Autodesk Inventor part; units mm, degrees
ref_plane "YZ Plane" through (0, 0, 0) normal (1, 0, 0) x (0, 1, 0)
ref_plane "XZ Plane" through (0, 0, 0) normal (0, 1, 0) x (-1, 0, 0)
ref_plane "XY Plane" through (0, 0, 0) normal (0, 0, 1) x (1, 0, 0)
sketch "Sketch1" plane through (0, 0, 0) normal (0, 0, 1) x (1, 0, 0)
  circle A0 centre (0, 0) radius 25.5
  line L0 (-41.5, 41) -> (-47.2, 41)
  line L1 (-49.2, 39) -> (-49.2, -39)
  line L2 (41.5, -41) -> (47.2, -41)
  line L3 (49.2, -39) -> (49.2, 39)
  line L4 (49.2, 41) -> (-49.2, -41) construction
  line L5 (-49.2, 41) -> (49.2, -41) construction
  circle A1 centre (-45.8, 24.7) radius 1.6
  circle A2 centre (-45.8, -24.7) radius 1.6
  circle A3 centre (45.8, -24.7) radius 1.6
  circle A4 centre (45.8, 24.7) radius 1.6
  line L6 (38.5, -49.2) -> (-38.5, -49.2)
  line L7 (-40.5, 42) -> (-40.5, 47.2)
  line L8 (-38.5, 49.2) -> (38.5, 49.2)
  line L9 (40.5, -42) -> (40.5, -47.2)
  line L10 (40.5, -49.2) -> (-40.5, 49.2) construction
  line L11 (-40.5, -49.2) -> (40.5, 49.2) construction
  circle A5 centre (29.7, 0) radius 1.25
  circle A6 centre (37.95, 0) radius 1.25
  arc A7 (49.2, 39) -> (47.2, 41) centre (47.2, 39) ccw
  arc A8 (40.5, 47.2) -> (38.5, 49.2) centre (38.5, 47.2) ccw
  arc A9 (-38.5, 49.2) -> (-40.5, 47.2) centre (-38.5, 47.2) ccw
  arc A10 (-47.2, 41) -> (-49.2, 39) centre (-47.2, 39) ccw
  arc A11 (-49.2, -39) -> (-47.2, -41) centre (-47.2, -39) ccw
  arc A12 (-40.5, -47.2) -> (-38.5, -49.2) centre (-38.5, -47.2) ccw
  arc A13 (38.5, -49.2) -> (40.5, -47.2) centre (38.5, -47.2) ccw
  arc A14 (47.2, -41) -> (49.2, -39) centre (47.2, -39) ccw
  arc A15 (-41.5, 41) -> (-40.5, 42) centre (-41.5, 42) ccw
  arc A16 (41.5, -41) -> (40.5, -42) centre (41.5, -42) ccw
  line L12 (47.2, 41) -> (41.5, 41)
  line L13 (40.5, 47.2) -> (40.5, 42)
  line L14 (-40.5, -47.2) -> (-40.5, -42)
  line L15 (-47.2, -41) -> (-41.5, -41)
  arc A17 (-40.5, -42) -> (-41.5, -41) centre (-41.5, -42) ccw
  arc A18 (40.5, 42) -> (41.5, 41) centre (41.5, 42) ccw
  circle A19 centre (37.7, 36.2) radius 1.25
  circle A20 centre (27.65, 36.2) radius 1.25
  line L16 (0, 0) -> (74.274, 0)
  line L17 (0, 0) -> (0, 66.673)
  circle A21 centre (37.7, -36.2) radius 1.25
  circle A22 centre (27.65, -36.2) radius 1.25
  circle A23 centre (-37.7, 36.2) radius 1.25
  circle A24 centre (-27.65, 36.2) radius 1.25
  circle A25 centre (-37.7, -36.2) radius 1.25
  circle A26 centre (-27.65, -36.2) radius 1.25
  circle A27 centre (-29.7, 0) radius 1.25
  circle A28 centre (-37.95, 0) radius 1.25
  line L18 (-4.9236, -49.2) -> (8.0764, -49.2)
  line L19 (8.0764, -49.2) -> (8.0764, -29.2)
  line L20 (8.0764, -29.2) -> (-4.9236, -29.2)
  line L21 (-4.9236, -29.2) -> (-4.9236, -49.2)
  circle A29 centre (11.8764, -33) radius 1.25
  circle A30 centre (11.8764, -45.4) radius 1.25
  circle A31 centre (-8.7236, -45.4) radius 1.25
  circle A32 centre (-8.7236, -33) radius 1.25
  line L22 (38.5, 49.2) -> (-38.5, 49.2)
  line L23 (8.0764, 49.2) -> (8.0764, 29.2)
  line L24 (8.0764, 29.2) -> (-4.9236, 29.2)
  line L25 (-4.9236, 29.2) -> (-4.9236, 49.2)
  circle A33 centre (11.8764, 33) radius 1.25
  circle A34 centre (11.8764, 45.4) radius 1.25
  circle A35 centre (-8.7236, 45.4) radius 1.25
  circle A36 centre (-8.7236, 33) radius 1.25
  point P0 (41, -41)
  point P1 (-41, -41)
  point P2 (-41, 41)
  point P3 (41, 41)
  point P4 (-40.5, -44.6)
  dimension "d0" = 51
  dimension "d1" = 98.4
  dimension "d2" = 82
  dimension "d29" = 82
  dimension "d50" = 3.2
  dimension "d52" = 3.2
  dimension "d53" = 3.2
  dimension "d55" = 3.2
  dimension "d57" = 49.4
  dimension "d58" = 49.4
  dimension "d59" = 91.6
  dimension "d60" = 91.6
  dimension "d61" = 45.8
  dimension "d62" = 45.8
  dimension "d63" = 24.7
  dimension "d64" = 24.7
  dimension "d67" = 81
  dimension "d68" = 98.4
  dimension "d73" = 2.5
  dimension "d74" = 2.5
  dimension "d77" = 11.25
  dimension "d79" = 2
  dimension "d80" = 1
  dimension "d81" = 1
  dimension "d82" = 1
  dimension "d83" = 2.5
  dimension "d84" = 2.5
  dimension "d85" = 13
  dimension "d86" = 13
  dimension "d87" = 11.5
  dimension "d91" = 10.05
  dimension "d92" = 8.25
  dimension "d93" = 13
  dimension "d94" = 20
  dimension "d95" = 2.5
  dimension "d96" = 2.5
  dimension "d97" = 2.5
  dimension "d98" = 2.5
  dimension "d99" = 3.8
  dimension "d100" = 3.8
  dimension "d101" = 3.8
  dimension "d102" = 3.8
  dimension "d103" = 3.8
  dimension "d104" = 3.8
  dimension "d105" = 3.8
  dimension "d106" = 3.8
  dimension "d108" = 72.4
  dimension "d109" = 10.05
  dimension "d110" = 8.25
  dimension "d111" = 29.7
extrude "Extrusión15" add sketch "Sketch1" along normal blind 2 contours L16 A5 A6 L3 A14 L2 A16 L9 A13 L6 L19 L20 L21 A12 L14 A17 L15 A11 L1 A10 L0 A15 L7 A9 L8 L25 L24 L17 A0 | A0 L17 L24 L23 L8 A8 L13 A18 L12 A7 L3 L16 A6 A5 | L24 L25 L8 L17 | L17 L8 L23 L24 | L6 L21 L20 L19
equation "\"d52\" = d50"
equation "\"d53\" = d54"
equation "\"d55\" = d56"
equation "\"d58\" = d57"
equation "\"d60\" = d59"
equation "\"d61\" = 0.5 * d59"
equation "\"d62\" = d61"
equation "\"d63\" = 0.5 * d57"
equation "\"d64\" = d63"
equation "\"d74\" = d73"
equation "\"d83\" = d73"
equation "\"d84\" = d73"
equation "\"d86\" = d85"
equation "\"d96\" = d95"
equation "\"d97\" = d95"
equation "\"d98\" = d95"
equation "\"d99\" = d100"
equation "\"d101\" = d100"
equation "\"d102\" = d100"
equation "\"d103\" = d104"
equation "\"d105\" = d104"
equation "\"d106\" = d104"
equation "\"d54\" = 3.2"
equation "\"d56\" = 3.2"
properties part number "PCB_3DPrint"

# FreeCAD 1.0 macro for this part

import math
import FreeCAD as App
import Part
import Sketcher

V = App.Vector
Q = App.Units.Quantity

doc = App.newDocument("Part")
body = doc.addObject("PartDesign::Body", "Body")

sketch1 = body.newObject("Sketcher::SketchObject", "Sketch")
sketch1.AttachmentSupport = (doc.getObject("XY_Plane"), [""])
sketch1.MapMode = "FlatFace"
sketch1.addGeometry([
    Part.LineSegment(V(49.2, -39, 0), V(49.2, 39, 0)),
    Part.ArcOfCircle(Part.Circle(V(47.2, 39, 0), V(0, 0, 1), 2), math.radians(0), math.radians(90)),
    Part.LineSegment(V(47.2, 41, 0), V(41.5, 41, 0)),
    Part.ArcOfCircle(Part.Circle(V(41.5, 42, 0), V(0, 0, 1), 1), math.radians(180), math.radians(270)),
    Part.LineSegment(V(40.5, 42, 0), V(40.5, 47.2, 0)),
    Part.ArcOfCircle(Part.Circle(V(38.5, 47.2, 0), V(0, 0, 1), 2), math.radians(0), math.radians(90)),
    Part.LineSegment(V(38.5, 49.2, 0), V(-38.5, 49.2, 0)),
    Part.ArcOfCircle(Part.Circle(V(-38.5, 47.2, 0), V(0, 0, 1), 2), math.radians(90), math.radians(180)),
    Part.LineSegment(V(-40.5, 47.2, 0), V(-40.5, 42, 0)),
    Part.ArcOfCircle(Part.Circle(V(-41.5, 42, 0), V(0, 0, 1), 1), math.radians(-90), math.radians(0)),
    Part.LineSegment(V(-41.5, 41, 0), V(-47.2, 41, 0)),
    Part.ArcOfCircle(Part.Circle(V(-47.2, 39, 0), V(0, 0, 1), 2), math.radians(90), math.radians(180)),
    Part.LineSegment(V(-49.2, 39, 0), V(-49.2, -39, 0)),
    Part.ArcOfCircle(Part.Circle(V(-47.2, -39, 0), V(0, 0, 1), 2), math.radians(180), math.radians(270)),
    Part.LineSegment(V(-47.2, -41, 0), V(-41.5, -41, 0)),
    Part.ArcOfCircle(Part.Circle(V(-41.5, -42, 0), V(0, 0, 1), 1), math.radians(0), math.radians(90)),
    Part.LineSegment(V(-40.5, -42, 0), V(-40.5, -47.2, 0)),
    Part.ArcOfCircle(Part.Circle(V(-38.5, -47.2, 0), V(0, 0, 1), 2), math.radians(180), math.radians(270)),
    Part.LineSegment(V(-38.5, -49.2, 0), V(38.5, -49.2, 0)),
    Part.ArcOfCircle(Part.Circle(V(38.5, -47.2, 0), V(0, 0, 1), 2), math.radians(-90), math.radians(0)),
    Part.LineSegment(V(40.5, -47.2, 0), V(40.5, -42, 0)),
    Part.ArcOfCircle(Part.Circle(V(41.5, -42, 0), V(0, 0, 1), 1), math.radians(90), math.radians(180)),
    Part.LineSegment(V(41.5, -41, 0), V(47.2, -41, 0)),
    Part.ArcOfCircle(Part.Circle(V(47.2, -39, 0), V(0, 0, 1), 2), math.radians(-90), math.radians(0)),
    Part.Circle(V(29.7, 0, 0), V(0, 0, 1), 1.2),
    Part.Circle(V(38, 0, 0), V(0, 0, 1), 1.2),
    Part.Circle(V(0, 0, 0), V(0, 0, 1), 25.5),
    Part.Circle(V(-37.7, -36.2, 0), V(0, 0, 1), 1.2),
    Part.Circle(V(-45.8, -24.7, 0), V(0, 0, 1), 1.6),
    Part.Circle(V(-27.6, -36.2, 0), V(0, 0, 1), 1.2),
    Part.Circle(V(-8.7, -45.4, 0), V(0, 0, 1), 1.2),
    Part.Circle(V(-8.7, -33, 0), V(0, 0, 1), 1.2),
    Part.Circle(V(11.9, -45.4, 0), V(0, 0, 1), 1.2),
    Part.Circle(V(11.9, -33, 0), V(0, 0, 1), 1.2),
    Part.Circle(V(27.6, -36.2, 0), V(0, 0, 1), 1.2),
    Part.Circle(V(37.7, -36.2, 0), V(0, 0, 1), 1.2),
    Part.Circle(V(45.8, -24.7, 0), V(0, 0, 1), 1.6),
    Part.Circle(V(-38, 0, 0), V(0, 0, 1), 1.2),
    Part.Circle(V(-29.7, 0, 0), V(0, 0, 1), 1.2),
    Part.Circle(V(-45.8, 24.7, 0), V(0, 0, 1), 1.6),
    Part.Circle(V(-37.7, 36.2, 0), V(0, 0, 1), 1.2),
    Part.Circle(V(-27.6, 36.2, 0), V(0, 0, 1), 1.2),
    Part.Circle(V(-8.7, 33, 0), V(0, 0, 1), 1.2),
    Part.Circle(V(-8.7, 45.4, 0), V(0, 0, 1), 1.2),
    Part.Circle(V(11.9, 45.4, 0), V(0, 0, 1), 1.2),
    Part.Circle(V(27.6, 36.2, 0), V(0, 0, 1), 1.2),
    Part.Circle(V(45.8, 24.7, 0), V(0, 0, 1), 1.6),
    Part.Circle(V(37.7, 36.2, 0), V(0, 0, 1), 1.2),
    Part.Circle(V(11.9, 33, 0), V(0, 0, 1), 1.2),
], False)
sketch1.addConstraint([
    Sketcher.Constraint("Tangent", 0, 2, 1, 1),
    Sketcher.Constraint("Tangent", 1, 2, 2, 1),
    Sketcher.Constraint("Tangent", 2, 2, 3, 2),
    Sketcher.Constraint("Tangent", 3, 1, 4, 1),
    Sketcher.Constraint("Tangent", 4, 2, 5, 1),
    Sketcher.Constraint("Tangent", 5, 2, 6, 1),
    Sketcher.Constraint("Tangent", 6, 2, 7, 1),
    Sketcher.Constraint("Tangent", 7, 2, 8, 1),
    Sketcher.Constraint("Tangent", 8, 2, 9, 2),
    Sketcher.Constraint("Tangent", 9, 1, 10, 1),
    Sketcher.Constraint("Tangent", 10, 2, 11, 1),
    Sketcher.Constraint("Tangent", 11, 2, 12, 1),
    Sketcher.Constraint("Tangent", 12, 2, 13, 1),
    Sketcher.Constraint("Tangent", 13, 2, 14, 1),
    Sketcher.Constraint("Tangent", 14, 2, 15, 2),
    Sketcher.Constraint("Tangent", 15, 1, 16, 1),
    Sketcher.Constraint("Tangent", 16, 2, 17, 1),
    Sketcher.Constraint("Tangent", 17, 2, 18, 1),
    Sketcher.Constraint("Tangent", 18, 2, 19, 1),
    Sketcher.Constraint("Tangent", 19, 2, 20, 1),
    Sketcher.Constraint("Tangent", 20, 2, 21, 2),
    Sketcher.Constraint("Tangent", 21, 1, 22, 1),
    Sketcher.Constraint("Tangent", 22, 2, 23, 1),
    Sketcher.Constraint("Tangent", 23, 2, 0, 1),
    Sketcher.Constraint("Vertical", 0),
    Sketcher.Constraint("Horizontal", 2),
    Sketcher.Constraint("Vertical", 4),
    Sketcher.Constraint("Horizontal", 6),
    Sketcher.Constraint("Vertical", 8),
    Sketcher.Constraint("Horizontal", 10),
    Sketcher.Constraint("Vertical", 12),
    Sketcher.Constraint("Horizontal", 14),
    Sketcher.Constraint("Vertical", 16),
    Sketcher.Constraint("Horizontal", 18),
    Sketcher.Constraint("Vertical", 20),
    Sketcher.Constraint("Horizontal", 22),
    Sketcher.Constraint("Coincident", 26, 3, -1, 1),
    Sketcher.Constraint("Equal", 1, 5),
    Sketcher.Constraint("Equal", 5, 7),
    Sketcher.Constraint("Equal", 3, 9),
    Sketcher.Constraint("Equal", 7, 11),
    Sketcher.Constraint("Equal", 11, 13),
    Sketcher.Constraint("Equal", 9, 15),
    Sketcher.Constraint("Equal", 13, 17),
    Sketcher.Constraint("Equal", 17, 19),
    Sketcher.Constraint("Equal", 15, 21),
    Sketcher.Constraint("Equal", 19, 23),
    Sketcher.Constraint("Equal", 24, 25),
    Sketcher.Constraint("Equal", 25, 27),
    Sketcher.Constraint("Equal", 27, 29),
    Sketcher.Constraint("Equal", 29, 30),
    Sketcher.Constraint("Equal", 30, 31),
    Sketcher.Constraint("Equal", 31, 32),
    Sketcher.Constraint("Equal", 32, 33),
    Sketcher.Constraint("Equal", 33, 34),
    Sketcher.Constraint("Equal", 34, 35),
    Sketcher.Constraint("Equal", 28, 36),
    Sketcher.Constraint("Equal", 35, 37),
    Sketcher.Constraint("Equal", 37, 38),
    Sketcher.Constraint("Equal", 36, 39),
    Sketcher.Constraint("Equal", 38, 40),
    Sketcher.Constraint("Equal", 40, 41),
    Sketcher.Constraint("Equal", 41, 42),
    Sketcher.Constraint("Equal", 42, 43),
    Sketcher.Constraint("Equal", 43, 44),
    Sketcher.Constraint("Equal", 44, 45),
    Sketcher.Constraint("Equal", 39, 46),
    Sketcher.Constraint("Equal", 45, 47),
    Sketcher.Constraint("Equal", 47, 48),
    Sketcher.Constraint("Symmetric", 1, 3, 13, 3, -1, 1),
    Sketcher.Constraint("Symmetric", 5, 3, 17, 3, -1, 1),
    Sketcher.Constraint("Symmetric", 9, 3, 21, 3, -1, 1),
    Sketcher.Constraint("Symmetric", 25, 3, 37, 3, -1, 1),
    Sketcher.Constraint("Symmetric", 24, 3, 38, 3, -1, 1),
    Sketcher.Constraint("Symmetric", 36, 3, 39, 3, -1, 1),
    Sketcher.Constraint("Symmetric", 35, 3, 40, 3, -1, 1),
    Sketcher.Constraint("Symmetric", 34, 3, 41, 3, -1, 1),
    Sketcher.Constraint("Symmetric", 29, 3, 45, 3, -1, 1),
    Sketcher.Constraint("Symmetric", 28, 3, 46, 3, -1, 1),
    Sketcher.Constraint("Symmetric", 27, 3, 47, 3, -1, 1),
    Sketcher.Constraint("Symmetric", 3, 3, 9, 3, -2),
    Sketcher.Constraint("Symmetric", 29, 3, 34, 3, -2),
    Sketcher.Constraint("Symmetric", 27, 3, 35, 3, -2),
    Sketcher.Constraint("Symmetric", 28, 3, 36, 3, -2),
    Sketcher.Constraint("Symmetric", 31, 3, 42, 3, -1),
    Sketcher.Constraint("Symmetric", 30, 3, 43, 3, -1),
    Sketcher.Constraint("Symmetric", 32, 3, 44, 3, -1),
    Sketcher.Constraint("Symmetric", 33, 3, 48, 3, -1),
    Sketcher.Constraint("PointOnObject", 24, 3, -1),
    Sketcher.Constraint("PointOnObject", 25, 3, -1),
    Sketcher.Constraint("Horizontal", 27, 3, 29, 3),
    Sketcher.Constraint("Horizontal", 30, 3, 32, 3),
    Sketcher.Constraint("Horizontal", 31, 3, 33, 3),
    Sketcher.Constraint("Vertical", 30, 3, 31, 3),
    Sketcher.Constraint("Vertical", 32, 3, 33, 3),
    Sketcher.Constraint("Diameter", 26, Q("51 mm")),
    Sketcher.Constraint("Radius", 1, Q("2 mm")),
    Sketcher.Constraint("Radius", 3, Q("1 mm")),
    Sketcher.Constraint("Diameter", 24, Q("2.5 mm")),
    Sketcher.Constraint("Diameter", 28, Q("3.2 mm")),
    Sketcher.Constraint("DistanceX", -1, 1, 24, 3, Q("29.7 mm")),
    Sketcher.Constraint("DistanceX", 28, 3, -1, 1, Q("45.8 mm")),
    Sketcher.Constraint("DistanceY", 28, 3, -1, 1, Q("24.7 mm")),
    Sketcher.Constraint("DistanceX", 6, 2, 6, 1, Q("77 mm")),
    Sketcher.Constraint("DistanceY", 0, 1, 0, 2, Q("78 mm")),
    Sketcher.Constraint("DistanceX", 2, 2, 2, 1, Q("5.7 mm")),
    Sketcher.Constraint("DistanceY", 4, 1, 4, 2, Q("5.2 mm")),
    Sketcher.Constraint("DistanceY", 31, 3, -1, 1, Q("33 mm")),
    Sketcher.Constraint("DistanceX", 27, 3, -1, 1, Q("37.7 mm")),
    Sketcher.Constraint("DistanceY", 27, 3, -1, 1, Q("36.2 mm")),
    Sketcher.Constraint("DistanceY", 30, 3, -1, 1, Q("45.4 mm")),
    Sketcher.Constraint("DistanceX", -1, 1, 25, 3, Q("37.95 mm")),
    Sketcher.Constraint("DistanceX", 29, 3, -1, 1, Q("27.65 mm")),
    Sketcher.Constraint("DistanceX", 30, 3, -1, 1, Q("8.7236 mm")),
    Sketcher.Constraint("DistanceX", -1, 1, 32, 3, Q("11.8764 mm")),
])
pad1 = body.newObject("PartDesign::Pad", "Pad")
pad1.Profile = sketch1
pad1.Length = 2

doc.recompute()
